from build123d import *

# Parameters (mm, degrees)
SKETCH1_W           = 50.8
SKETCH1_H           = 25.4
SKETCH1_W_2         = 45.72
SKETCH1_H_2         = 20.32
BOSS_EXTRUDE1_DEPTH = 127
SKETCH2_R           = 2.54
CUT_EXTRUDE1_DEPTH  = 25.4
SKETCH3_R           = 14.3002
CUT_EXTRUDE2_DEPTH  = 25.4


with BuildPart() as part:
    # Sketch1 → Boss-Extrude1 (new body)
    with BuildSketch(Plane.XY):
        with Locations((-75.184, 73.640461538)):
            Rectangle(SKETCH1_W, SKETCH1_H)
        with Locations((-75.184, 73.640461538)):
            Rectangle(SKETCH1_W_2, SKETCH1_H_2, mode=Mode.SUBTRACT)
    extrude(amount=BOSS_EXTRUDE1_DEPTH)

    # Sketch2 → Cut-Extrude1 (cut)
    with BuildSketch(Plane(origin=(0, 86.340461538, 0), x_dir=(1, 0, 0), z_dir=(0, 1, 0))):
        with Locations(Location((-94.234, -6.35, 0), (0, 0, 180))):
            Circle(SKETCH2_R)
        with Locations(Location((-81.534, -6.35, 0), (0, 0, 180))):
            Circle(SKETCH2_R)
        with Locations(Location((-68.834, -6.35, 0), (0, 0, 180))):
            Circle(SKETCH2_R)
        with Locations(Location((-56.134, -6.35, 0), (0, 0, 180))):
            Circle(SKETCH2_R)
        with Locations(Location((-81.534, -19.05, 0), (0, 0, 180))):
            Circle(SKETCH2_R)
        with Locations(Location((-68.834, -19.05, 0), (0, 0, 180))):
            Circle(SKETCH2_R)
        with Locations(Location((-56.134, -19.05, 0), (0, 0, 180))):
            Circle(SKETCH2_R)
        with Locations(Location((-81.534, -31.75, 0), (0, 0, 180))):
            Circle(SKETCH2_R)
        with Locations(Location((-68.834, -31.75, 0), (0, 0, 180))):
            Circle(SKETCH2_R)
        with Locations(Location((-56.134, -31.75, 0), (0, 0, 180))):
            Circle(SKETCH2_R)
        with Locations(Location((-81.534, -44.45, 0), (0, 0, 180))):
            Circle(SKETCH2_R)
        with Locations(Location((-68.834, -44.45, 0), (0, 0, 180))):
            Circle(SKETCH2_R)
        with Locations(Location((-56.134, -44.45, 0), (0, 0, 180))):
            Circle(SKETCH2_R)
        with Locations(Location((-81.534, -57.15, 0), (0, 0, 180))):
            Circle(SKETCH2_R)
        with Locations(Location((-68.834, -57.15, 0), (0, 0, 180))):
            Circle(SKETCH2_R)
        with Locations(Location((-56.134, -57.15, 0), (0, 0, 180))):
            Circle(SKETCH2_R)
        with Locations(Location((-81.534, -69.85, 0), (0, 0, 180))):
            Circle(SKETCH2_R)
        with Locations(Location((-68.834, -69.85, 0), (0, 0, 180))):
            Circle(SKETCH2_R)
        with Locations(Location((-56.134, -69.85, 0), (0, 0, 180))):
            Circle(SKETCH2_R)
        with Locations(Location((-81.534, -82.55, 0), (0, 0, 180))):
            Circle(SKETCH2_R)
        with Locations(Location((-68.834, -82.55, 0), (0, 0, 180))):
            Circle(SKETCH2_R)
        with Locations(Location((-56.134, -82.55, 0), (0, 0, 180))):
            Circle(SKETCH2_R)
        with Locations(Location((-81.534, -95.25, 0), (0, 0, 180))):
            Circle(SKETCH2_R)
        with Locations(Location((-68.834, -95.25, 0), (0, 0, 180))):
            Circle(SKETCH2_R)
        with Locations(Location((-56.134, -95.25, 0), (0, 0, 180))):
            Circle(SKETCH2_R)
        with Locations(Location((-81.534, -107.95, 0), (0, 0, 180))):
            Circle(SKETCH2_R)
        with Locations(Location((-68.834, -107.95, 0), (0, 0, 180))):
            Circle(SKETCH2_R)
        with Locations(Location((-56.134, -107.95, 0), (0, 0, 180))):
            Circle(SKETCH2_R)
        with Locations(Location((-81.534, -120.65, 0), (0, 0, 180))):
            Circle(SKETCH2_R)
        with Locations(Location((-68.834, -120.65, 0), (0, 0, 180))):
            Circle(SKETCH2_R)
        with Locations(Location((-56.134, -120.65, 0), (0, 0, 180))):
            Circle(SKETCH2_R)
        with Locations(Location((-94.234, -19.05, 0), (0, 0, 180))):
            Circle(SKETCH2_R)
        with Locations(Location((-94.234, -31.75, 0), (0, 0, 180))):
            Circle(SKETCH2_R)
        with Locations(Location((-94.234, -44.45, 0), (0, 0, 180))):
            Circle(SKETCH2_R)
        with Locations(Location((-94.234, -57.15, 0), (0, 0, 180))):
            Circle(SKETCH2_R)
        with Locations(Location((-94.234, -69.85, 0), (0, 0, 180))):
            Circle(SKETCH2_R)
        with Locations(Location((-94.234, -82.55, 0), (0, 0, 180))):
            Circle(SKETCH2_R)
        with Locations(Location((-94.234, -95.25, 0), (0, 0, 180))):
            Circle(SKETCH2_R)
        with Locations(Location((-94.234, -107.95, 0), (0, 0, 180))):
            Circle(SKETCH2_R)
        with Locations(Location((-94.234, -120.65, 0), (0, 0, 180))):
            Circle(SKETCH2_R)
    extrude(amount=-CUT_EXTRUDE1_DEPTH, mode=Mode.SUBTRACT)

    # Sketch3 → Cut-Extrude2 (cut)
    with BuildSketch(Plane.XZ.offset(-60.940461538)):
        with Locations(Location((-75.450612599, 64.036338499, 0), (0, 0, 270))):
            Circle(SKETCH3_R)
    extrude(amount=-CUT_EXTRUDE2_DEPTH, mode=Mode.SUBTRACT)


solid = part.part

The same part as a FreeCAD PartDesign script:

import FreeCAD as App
import Part
import Sketcher

V = App.Vector
Q = App.Units.Quantity

doc = App.newDocument("Part")
params = doc.addObject("Spreadsheet::Sheet", "Params")
for row, (alias, value) in enumerate([
    ("sketch1_width", "2 in"),
    ("sketch1_height", "1 in"),
    ("sketch1_width2", "1.8 in"),
    ("sketch1_height2", "0.8 in"),
    ("pad1_length", "5 in"),
    ("sketch2_diameter", "0.2 in"),
    ("pocket1_length", "1 in"),
    ("sketch3_diameter", "1.126 in"),
    ("pocket2_length", "1 in"),
], start=1):
    params.set(f"A{row}", alias)
    params.set(f"B{row}", "=" + value)
    params.setAlias(f"B{row}", alias)

body = doc.addObject("PartDesign::Body", "Body")

sketch1 = doc.addObject("Sketcher::SketchObject", "Sketch")
body.addObject(sketch1)
sketch1.AttachmentSupport = (doc.XY_Plane, [""])
sketch1.MapMode = "FlatFace"
sketch1.addGeometry(Part.LineSegment(V(-101, 86, 0), V(-101, 61, 0)), False)
sketch1.addGeometry(Part.LineSegment(V(-101, 61, 0), V(-50, 61, 0)), False)
sketch1.addGeometry(Part.LineSegment(V(-50, 61, 0), V(-50, 86, 0)), False)
sketch1.addGeometry(Part.LineSegment(V(-50, 86, 0), V(-101, 86, 0)), False)
sketch1.addGeometry(Part.LineSegment(V(-52, 63, 0), V(-98, 63, 0)), False)
sketch1.addGeometry(Part.LineSegment(V(-98, 63, 0), V(-98, 84, 0)), False)
sketch1.addGeometry(Part.LineSegment(V(-98, 84, 0), V(-52, 84, 0)), False)
sketch1.addGeometry(Part.LineSegment(V(-52, 84, 0), V(-52, 63, 0)), False)
sketch1.addConstraint(Sketcher.Constraint("Coincident", 0, 2, 1, 1))
sketch1.addConstraint(Sketcher.Constraint("Coincident", 1, 2, 2, 1))
sketch1.addConstraint(Sketcher.Constraint("Coincident", 2, 2, 3, 1))
sketch1.addConstraint(Sketcher.Constraint("Coincident", 3, 2, 0, 1))
sketch1.addConstraint(Sketcher.Constraint("Coincident", 4, 2, 5, 1))
sketch1.addConstraint(Sketcher.Constraint("Coincident", 5, 2, 6, 1))
sketch1.addConstraint(Sketcher.Constraint("Coincident", 6, 2, 7, 1))
sketch1.addConstraint(Sketcher.Constraint("Coincident", 7, 2, 4, 1))
sketch1.addConstraint(Sketcher.Constraint("Vertical", 0))
sketch1.addConstraint(Sketcher.Constraint("Horizontal", 1))
sketch1.addConstraint(Sketcher.Constraint("Vertical", 2))
sketch1.addConstraint(Sketcher.Constraint("Horizontal", 3))
sketch1.addConstraint(Sketcher.Constraint("Horizontal", 4))
sketch1.addConstraint(Sketcher.Constraint("Vertical", 5))
sketch1.addConstraint(Sketcher.Constraint("Horizontal", 6))
sketch1.addConstraint(Sketcher.Constraint("Vertical", 7))
sketch1.addConstraint(Sketcher.Constraint("DistanceX", 1, 1, 1, 2, Q("2 in")))
sketch1.addConstraint(Sketcher.Constraint("DistanceY", 0, 2, 0, 1, Q("1 in")))
sketch1.addConstraint(Sketcher.Constraint("DistanceX", 4, 2, 4, 1, Q("1.8 in")))
sketch1.addConstraint(Sketcher.Constraint("DistanceY", 5, 1, 5, 2, Q("0.8 in")))
sketch1.addConstraint(Sketcher.Constraint("DistanceX", 0, 2, 4, 2, Q("0.1 in")))
sketch1.addConstraint(Sketcher.Constraint("DistanceY", 0, 2, 4, 2, Q("0.1 in")))
sketch1.addConstraint(Sketcher.Constraint("DistanceX", 0, 2, -1, 1, Q("3.96 in")))
sketch1.addConstraint(Sketcher.Constraint("DistanceY", -1, 1, 0, 2, 60.940462))
sketch1.setExpression("Constraints[16]", "Params.sketch1_width")
sketch1.setExpression("Constraints[17]", "Params.sketch1_height")
sketch1.setExpression("Constraints[18]", "Params.sketch1_width2")
sketch1.setExpression("Constraints[19]", "Params.sketch1_height2")
pad1 = doc.addObject("PartDesign::Pad", "Pad")
body.addObject(pad1)
pad1.Profile = sketch1
pad1.setExpression("Length", "Params.pad1_length")

sketch2 = doc.addObject("Sketcher::SketchObject", "Sketch001")
body.addObject(sketch2)
sketch2.AttachmentSupport = (doc.XZ_Plane, [""])
sketch2.MapMode = "FlatFace"
sketch2.AttachmentOffset = App.Placement(V(0, 0, -86.340462), App.Rotation())
sketch2.addGeometry(Part.Circle(V(-94.2, 6.3, 0), V(0, 0, 1), 2.5), False)
sketch2.addGeometry(Part.Circle(V(-81.5, 6.3, 0), V(0, 0, 1), 2.5), False)
sketch2.addGeometry(Part.Circle(V(-68.8, 6.3, 0), V(0, 0, 1), 2.5), False)
sketch2.addGeometry(Part.Circle(V(-56.1, 6.3, 0), V(0, 0, 1), 2.5), False)
sketch2.addGeometry(Part.Circle(V(-81.5, 19.1, 0), V(0, 0, 1), 2.5), False)
sketch2.addGeometry(Part.Circle(V(-68.8, 19.1, 0), V(0, 0, 1), 2.5), False)
sketch2.addGeometry(Part.Circle(V(-56.1, 19.1, 0), V(0, 0, 1), 2.5), False)
sketch2.addGeometry(Part.Circle(V(-81.5, 31.8, 0), V(0, 0, 1), 2.5), False)
sketch2.addGeometry(Part.Circle(V(-68.8, 31.8, 0), V(0, 0, 1), 2.5), False)
sketch2.addGeometry(Part.Circle(V(-56.1, 31.8, 0), V(0, 0, 1), 2.5), False)
sketch2.addGeometry(Part.Circle(V(-81.5, 44.5, 0), V(0, 0, 1), 2.5), False)
sketch2.addGeometry(Part.Circle(V(-68.8, 44.5, 0), V(0, 0, 1), 2.5), False)
sketch2.addGeometry(Part.Circle(V(-56.1, 44.5, 0), V(0, 0, 1), 2.5), False)
sketch2.addGeometry(Part.Circle(V(-81.5, 57.1, 0), V(0, 0, 1), 2.5), False)
sketch2.addGeometry(Part.Circle(V(-68.8, 57.1, 0), V(0, 0, 1), 2.5), False)
sketch2.addGeometry(Part.Circle(V(-56.1, 57.1, 0), V(0, 0, 1), 2.5), False)
sketch2.addGeometry(Part.Circle(V(-81.5, 69.8, 0), V(0, 0, 1), 2.5), False)
sketch2.addGeometry(Part.Circle(V(-68.8, 69.8, 0), V(0, 0, 1), 2.5), False)
sketch2.addGeometry(Part.Circle(V(-56.1, 69.8, 0), V(0, 0, 1), 2.5), False)
sketch2.addGeometry(Part.Circle(V(-81.5, 82.5, 0), V(0, 0, 1), 2.5), False)
sketch2.addGeometry(Part.Circle(V(-68.8, 82.5, 0), V(0, 0, 1), 2.5), False)
sketch2.addGeometry(Part.Circle(V(-56.1, 82.5, 0), V(0, 0, 1), 2.5), False)
sketch2.addGeometry(Part.Circle(V(-81.5, 95.2, 0), V(0, 0, 1), 2.5), False)
sketch2.addGeometry(Part.Circle(V(-68.8, 95.2, 0), V(0, 0, 1), 2.5), False)
sketch2.addGeometry(Part.Circle(V(-56.1, 95.2, 0), V(0, 0, 1), 2.5), False)
sketch2.addGeometry(Part.Circle(V(-81.5, 108, 0), V(0, 0, 1), 2.5), False)
sketch2.addGeometry(Part.Circle(V(-68.8, 108, 0), V(0, 0, 1), 2.5), False)
sketch2.addGeometry(Part.Circle(V(-56.1, 108, 0), V(0, 0, 1), 2.5), False)
sketch2.addGeometry(Part.Circle(V(-81.5, 120.7, 0), V(0, 0, 1), 2.5), False)
sketch2.addGeometry(Part.Circle(V(-68.8, 120.7, 0), V(0, 0, 1), 2.5), False)
sketch2.addGeometry(Part.Circle(V(-56.1, 120.7, 0), V(0, 0, 1), 2.5), False)
sketch2.addGeometry(Part.Circle(V(-94.2, 19.1, 0), V(0, 0, 1), 2.5), False)
sketch2.addGeometry(Part.Circle(V(-94.2, 31.8, 0), V(0, 0, 1), 2.5), False)
sketch2.addGeometry(Part.Circle(V(-94.2, 44.5, 0), V(0, 0, 1), 2.5), False)
sketch2.addGeometry(Part.Circle(V(-94.2, 57.1, 0), V(0, 0, 1), 2.5), False)
sketch2.addGeometry(Part.Circle(V(-94.2, 69.8, 0), V(0, 0, 1), 2.5), False)
sketch2.addGeometry(Part.Circle(V(-94.2, 82.5, 0), V(0, 0, 1), 2.5), False)
sketch2.addGeometry(Part.Circle(V(-94.2, 95.2, 0), V(0, 0, 1), 2.5), False)
sketch2.addGeometry(Part.Circle(V(-94.2, 108, 0), V(0, 0, 1), 2.5), False)
sketch2.addGeometry(Part.Circle(V(-94.2, 120.7, 0), V(0, 0, 1), 2.5), False)
sketch2.addConstraint(Sketcher.Constraint("Equal", 0, 1))
sketch2.addConstraint(Sketcher.Constraint("Equal", 1, 2))
sketch2.addConstraint(Sketcher.Constraint("Equal", 2, 3))
sketch2.addConstraint(Sketcher.Constraint("Equal", 3, 4))
sketch2.addConstraint(Sketcher.Constraint("Equal", 4, 5))
sketch2.addConstraint(Sketcher.Constraint("Equal", 5, 6))
sketch2.addConstraint(Sketcher.Constraint("Equal", 6, 7))
sketch2.addConstraint(Sketcher.Constraint("Equal", 7, 8))
sketch2.addConstraint(Sketcher.Constraint("Equal", 8, 9))
sketch2.addConstraint(Sketcher.Constraint("Equal", 9, 10))
sketch2.addConstraint(Sketcher.Constraint("Equal", 10, 11))
sketch2.addConstraint(Sketcher.Constraint("Equal", 11, 12))
sketch2.addConstraint(Sketcher.Constraint("Equal", 12, 13))
sketch2.addConstraint(Sketcher.Constraint("Equal", 13, 14))
sketch2.addConstraint(Sketcher.Constraint("Equal", 14, 15))
sketch2.addConstraint(Sketcher.Constraint("Equal", 15, 16))
sketch2.addConstraint(Sketcher.Constraint("Equal", 16, 17))
sketch2.addConstraint(Sketcher.Constraint("Equal", 17, 18))
sketch2.addConstraint(Sketcher.Constraint("Equal", 18, 19))
sketch2.addConstraint(Sketcher.Constraint("Equal", 19, 20))
sketch2.addConstraint(Sketcher.Constraint("Equal", 20, 21))
sketch2.addConstraint(Sketcher.Constraint("Equal", 21, 22))
sketch2.addConstraint(Sketcher.Constraint("Equal", 22, 23))
sketch2.addConstraint(Sketcher.Constraint("Equal", 23, 24))
sketch2.addConstraint(Sketcher.Constraint("Equal", 24, 25))
sketch2.addConstraint(Sketcher.Constraint("Equal", 25, 26))
sketch2.addConstraint(Sketcher.Constraint("Equal", 26, 27))
sketch2.addConstraint(Sketcher.Constraint("Equal", 27, 28))
sketch2.addConstraint(Sketcher.Constraint("Equal", 28, 29))
sketch2.addConstraint(Sketcher.Constraint("Equal", 29, 30))
sketch2.addConstraint(Sketcher.Constraint("Equal", 30, 31))
sketch2.addConstraint(Sketcher.Constraint("Equal", 31, 32))
sketch2.addConstraint(Sketcher.Constraint("Equal", 32, 33))
sketch2.addConstraint(Sketcher.Constraint("Equal", 33, 34))
sketch2.addConstraint(Sketcher.Constraint("Equal", 34, 35))
sketch2.addConstraint(Sketcher.Constraint("Equal", 35, 36))
sketch2.addConstraint(Sketcher.Constraint("Equal", 36, 37))
sketch2.addConstraint(Sketcher.Constraint("Equal", 37, 38))
sketch2.addConstraint(Sketcher.Constraint("Equal", 38, 39))
sketch2.addConstraint(Sketcher.Constraint("Horizontal", 0, 3, 1, 3))
sketch2.addConstraint(Sketcher.Constraint("Horizontal", 1, 3, 2, 3))
sketch2.addConstraint(Sketcher.Constraint("Horizontal", 2, 3, 3, 3))
sketch2.addConstraint(Sketcher.Constraint("Horizontal", 4, 3, 5, 3))
sketch2.addConstraint(Sketcher.Constraint("Horizontal", 5, 3, 6, 3))
sketch2.addConstraint(Sketcher.Constraint("Horizontal", 7, 3, 8, 3))
sketch2.addConstraint(Sketcher.Constraint("Horizontal", 8, 3, 9, 3))
sketch2.addConstraint(Sketcher.Constraint("Horizontal", 10, 3, 11, 3))
sketch2.addConstraint(Sketcher.Constraint("Horizontal", 11, 3, 12, 3))
sketch2.addConstraint(Sketcher.Constraint("Horizontal", 13, 3, 14, 3))
sketch2.addConstraint(Sketcher.Constraint("Horizontal", 14, 3, 15, 3))
sketch2.addConstraint(Sketcher.Constraint("Horizontal", 16, 3, 17, 3))
sketch2.addConstraint(Sketcher.Constraint("Horizontal", 17, 3, 18, 3))
sketch2.addConstraint(Sketcher.Constraint("Horizontal", 19, 3, 20, 3))
sketch2.addConstraint(Sketcher.Constraint("Horizontal", 20, 3, 21, 3))
sketch2.addConstraint(Sketcher.Constraint("Horizontal", 22, 3, 23, 3))
sketch2.addConstraint(Sketcher.Constraint("Horizontal", 23, 3, 24, 3))
sketch2.addConstraint(Sketcher.Constraint("Horizontal", 25, 3, 26, 3))
sketch2.addConstraint(Sketcher.Constraint("Horizontal", 26, 3, 27, 3))
sketch2.addConstraint(Sketcher.Constraint("Horizontal", 28, 3, 29, 3))
sketch2.addConstraint(Sketcher.Constraint("Horizontal", 29, 3, 30, 3))
sketch2.addConstraint(Sketcher.Constraint("Horizontal", 6, 3, 31, 3))
sketch2.addConstraint(Sketcher.Constraint("Horizontal", 9, 3, 32, 3))
sketch2.addConstraint(Sketcher.Constraint("Horizontal", 12, 3, 33, 3))
sketch2.addConstraint(Sketcher.Constraint("Horizontal", 15, 3, 34, 3))
sketch2.addConstraint(Sketcher.Constraint("Horizontal", 18, 3, 35, 3))
sketch2.addConstraint(Sketcher.Constraint("Horizontal", 21, 3, 36, 3))
sketch2.addConstraint(Sketcher.Constraint("Horizontal", 24, 3, 37, 3))
sketch2.addConstraint(Sketcher.Constraint("Horizontal", 27, 3, 38, 3))
sketch2.addConstraint(Sketcher.Constraint("Horizontal", 30, 3, 39, 3))
sketch2.addConstraint(Sketcher.Constraint("Vertical", 1, 3, 4, 3))
sketch2.addConstraint(Sketcher.Constraint("Vertical", 2, 3, 5, 3))
sketch2.addConstraint(Sketcher.Constraint("Vertical", 3, 3, 6, 3))
sketch2.addConstraint(Sketcher.Constraint("Vertical", 4, 3, 7, 3))
sketch2.addConstraint(Sketcher.Constraint("Vertical", 5, 3, 8, 3))
sketch2.addConstraint(Sketcher.Constraint("Vertical", 6, 3, 9, 3))
sketch2.addConstraint(Sketcher.Constraint("Vertical", 7, 3, 10, 3))
sketch2.addConstraint(Sketcher.Constraint("Vertical", 8, 3, 11, 3))
sketch2.addConstraint(Sketcher.Constraint("Vertical", 9, 3, 12, 3))
sketch2.addConstraint(Sketcher.Constraint("Vertical", 10, 3, 13, 3))
sketch2.addConstraint(Sketcher.Constraint("Vertical", 11, 3, 14, 3))
sketch2.addConstraint(Sketcher.Constraint("Vertical", 12, 3, 15, 3))
sketch2.addConstraint(Sketcher.Constraint("Vertical", 13, 3, 16, 3))
sketch2.addConstraint(Sketcher.Constraint("Vertical", 14, 3, 17, 3))
sketch2.addConstraint(Sketcher.Constraint("Vertical", 15, 3, 18, 3))
sketch2.addConstraint(Sketcher.Constraint("Vertical", 16, 3, 19, 3))
sketch2.addConstraint(Sketcher.Constraint("Vertical", 17, 3, 20, 3))
sketch2.addConstraint(Sketcher.Constraint("Vertical", 18, 3, 21, 3))
sketch2.addConstraint(Sketcher.Constraint("Vertical", 19, 3, 22, 3))
sketch2.addConstraint(Sketcher.Constraint("Vertical", 20, 3, 23, 3))
sketch2.addConstraint(Sketcher.Constraint("Vertical", 21, 3, 24, 3))
sketch2.addConstraint(Sketcher.Constraint("Vertical", 22, 3, 25, 3))
sketch2.addConstraint(Sketcher.Constraint("Vertical", 23, 3, 26, 3))
sketch2.addConstraint(Sketcher.Constraint("Vertical", 24, 3, 27, 3))
sketch2.addConstraint(Sketcher.Constraint("Vertical", 25, 3, 28, 3))
sketch2.addConstraint(Sketcher.Constraint("Vertical", 26, 3, 29, 3))
sketch2.addConstraint(Sketcher.Constraint("Vertical", 27, 3, 30, 3))
sketch2.addConstraint(Sketcher.Constraint("Vertical", 0, 3, 31, 3))
sketch2.addConstraint(Sketcher.Constraint("Vertical", 31, 3, 32, 3))
sketch2.addConstraint(Sketcher.Constraint("Vertical", 32, 3, 33, 3))
sketch2.addConstraint(Sketcher.Constraint("Vertical", 33, 3, 34, 3))
sketch2.addConstraint(Sketcher.Constraint("Vertical", 34, 3, 35, 3))
sketch2.addConstraint(Sketcher.Constraint("Vertical", 35, 3, 36, 3))
sketch2.addConstraint(Sketcher.Constraint("Vertical", 36, 3, 37, 3))
sketch2.addConstraint(Sketcher.Constraint("Vertical", 37, 3, 38, 3))
sketch2.addConstraint(Sketcher.Constraint("Vertical", 38, 3, 39, 3))
sketch2.addConstraint(Sketcher.Constraint("Diameter", 0, Q("0.2 in")))
sketch2.addConstraint(Sketcher.Constraint("DistanceX", 0, 3, 2, 3, Q("1 in")))
sketch2.addConstraint(Sketcher.Constraint("DistanceX", 1, 3, 3, 3, Q("1 in")))
sketch2.addConstraint(Sketcher.Constraint("DistanceY", 1, 3, 7, 3, Q("1 in")))
sketch2.addConstraint(Sketcher.Constraint("DistanceY", 4, 3, 10, 3, Q("1 in")))
sketch2.addConstraint(Sketcher.Constraint("DistanceY", 7, 3, 13, 3, Q("1 in")))
sketch2.addConstraint(Sketcher.Constraint("DistanceY", 10, 3, 16, 3, Q("1 in")))
sketch2.addConstraint(Sketcher.Constraint("DistanceY", 13, 3, 19, 3, Q("1 in")))
sketch2.addConstraint(Sketcher.Constraint("DistanceY", 16, 3, 22, 3, Q("1 in")))
sketch2.addConstraint(Sketcher.Constraint("DistanceY", 19, 3, 25, 3, Q("1 in")))
sketch2.addConstraint(Sketcher.Constraint("DistanceY", 22, 3, 28, 3, Q("1 in")))
sketch2.addConstraint(Sketcher.Constraint("DistanceX", 0, 3, 1, 3, Q("0.5 in")))
sketch2.addConstraint(Sketcher.Constraint("DistanceY", 1, 3, 4, 3, Q("0.5 in")))
sketch2.addConstraint(Sketcher.Constraint("DistanceX", 0, 3, -1, 1, Q("3.71 in")))
sketch2.addConstraint(Sketcher.Constraint("DistanceY", -1, 1, 0, 3, Q("0.25 in")))
sketch2.setExpression("Constraints[105]", "Params.sketch2_diameter")
pocket1 = doc.addObject("PartDesign::Pocket", "Pocket")
body.addObject(pocket1)
pocket1.Profile = sketch2
pocket1.setExpression("Length", "Params.pocket1_length")
pocket1.Reversed = True

sketch3 = doc.addObject("Sketcher::SketchObject", "Sketch002")
body.addObject(sketch3)
sketch3.AttachmentSupport = (doc.XZ_Plane, [""])
sketch3.MapMode = "FlatFace"
sketch3.AttachmentOffset = App.Placement(V(0, 0, -60.940462), App.Rotation())
sketch3.addGeometry(Part.Circle(V(-75, 64, 0), V(0, 0, 1), 14), False)
sketch3.addConstraint(Sketcher.Constraint("Diameter", 0, Q("1.126 in")))
sketch3.addConstraint(Sketcher.Constraint("DistanceY", -1, 1, 0, 3, 64.036338))
sketch3.addConstraint(Sketcher.Constraint("DistanceX", 0, 3, -1, 1, 75.450613))
sketch3.setExpression("Constraints[0]", "Params.sketch3_diameter")
pocket2 = doc.addObject("PartDesign::Pocket", "Pocket001")
body.addObject(pocket2)
pocket2.Profile = sketch3
pocket2.setExpression("Length", "Params.pocket2_length")

doc.recompute()
